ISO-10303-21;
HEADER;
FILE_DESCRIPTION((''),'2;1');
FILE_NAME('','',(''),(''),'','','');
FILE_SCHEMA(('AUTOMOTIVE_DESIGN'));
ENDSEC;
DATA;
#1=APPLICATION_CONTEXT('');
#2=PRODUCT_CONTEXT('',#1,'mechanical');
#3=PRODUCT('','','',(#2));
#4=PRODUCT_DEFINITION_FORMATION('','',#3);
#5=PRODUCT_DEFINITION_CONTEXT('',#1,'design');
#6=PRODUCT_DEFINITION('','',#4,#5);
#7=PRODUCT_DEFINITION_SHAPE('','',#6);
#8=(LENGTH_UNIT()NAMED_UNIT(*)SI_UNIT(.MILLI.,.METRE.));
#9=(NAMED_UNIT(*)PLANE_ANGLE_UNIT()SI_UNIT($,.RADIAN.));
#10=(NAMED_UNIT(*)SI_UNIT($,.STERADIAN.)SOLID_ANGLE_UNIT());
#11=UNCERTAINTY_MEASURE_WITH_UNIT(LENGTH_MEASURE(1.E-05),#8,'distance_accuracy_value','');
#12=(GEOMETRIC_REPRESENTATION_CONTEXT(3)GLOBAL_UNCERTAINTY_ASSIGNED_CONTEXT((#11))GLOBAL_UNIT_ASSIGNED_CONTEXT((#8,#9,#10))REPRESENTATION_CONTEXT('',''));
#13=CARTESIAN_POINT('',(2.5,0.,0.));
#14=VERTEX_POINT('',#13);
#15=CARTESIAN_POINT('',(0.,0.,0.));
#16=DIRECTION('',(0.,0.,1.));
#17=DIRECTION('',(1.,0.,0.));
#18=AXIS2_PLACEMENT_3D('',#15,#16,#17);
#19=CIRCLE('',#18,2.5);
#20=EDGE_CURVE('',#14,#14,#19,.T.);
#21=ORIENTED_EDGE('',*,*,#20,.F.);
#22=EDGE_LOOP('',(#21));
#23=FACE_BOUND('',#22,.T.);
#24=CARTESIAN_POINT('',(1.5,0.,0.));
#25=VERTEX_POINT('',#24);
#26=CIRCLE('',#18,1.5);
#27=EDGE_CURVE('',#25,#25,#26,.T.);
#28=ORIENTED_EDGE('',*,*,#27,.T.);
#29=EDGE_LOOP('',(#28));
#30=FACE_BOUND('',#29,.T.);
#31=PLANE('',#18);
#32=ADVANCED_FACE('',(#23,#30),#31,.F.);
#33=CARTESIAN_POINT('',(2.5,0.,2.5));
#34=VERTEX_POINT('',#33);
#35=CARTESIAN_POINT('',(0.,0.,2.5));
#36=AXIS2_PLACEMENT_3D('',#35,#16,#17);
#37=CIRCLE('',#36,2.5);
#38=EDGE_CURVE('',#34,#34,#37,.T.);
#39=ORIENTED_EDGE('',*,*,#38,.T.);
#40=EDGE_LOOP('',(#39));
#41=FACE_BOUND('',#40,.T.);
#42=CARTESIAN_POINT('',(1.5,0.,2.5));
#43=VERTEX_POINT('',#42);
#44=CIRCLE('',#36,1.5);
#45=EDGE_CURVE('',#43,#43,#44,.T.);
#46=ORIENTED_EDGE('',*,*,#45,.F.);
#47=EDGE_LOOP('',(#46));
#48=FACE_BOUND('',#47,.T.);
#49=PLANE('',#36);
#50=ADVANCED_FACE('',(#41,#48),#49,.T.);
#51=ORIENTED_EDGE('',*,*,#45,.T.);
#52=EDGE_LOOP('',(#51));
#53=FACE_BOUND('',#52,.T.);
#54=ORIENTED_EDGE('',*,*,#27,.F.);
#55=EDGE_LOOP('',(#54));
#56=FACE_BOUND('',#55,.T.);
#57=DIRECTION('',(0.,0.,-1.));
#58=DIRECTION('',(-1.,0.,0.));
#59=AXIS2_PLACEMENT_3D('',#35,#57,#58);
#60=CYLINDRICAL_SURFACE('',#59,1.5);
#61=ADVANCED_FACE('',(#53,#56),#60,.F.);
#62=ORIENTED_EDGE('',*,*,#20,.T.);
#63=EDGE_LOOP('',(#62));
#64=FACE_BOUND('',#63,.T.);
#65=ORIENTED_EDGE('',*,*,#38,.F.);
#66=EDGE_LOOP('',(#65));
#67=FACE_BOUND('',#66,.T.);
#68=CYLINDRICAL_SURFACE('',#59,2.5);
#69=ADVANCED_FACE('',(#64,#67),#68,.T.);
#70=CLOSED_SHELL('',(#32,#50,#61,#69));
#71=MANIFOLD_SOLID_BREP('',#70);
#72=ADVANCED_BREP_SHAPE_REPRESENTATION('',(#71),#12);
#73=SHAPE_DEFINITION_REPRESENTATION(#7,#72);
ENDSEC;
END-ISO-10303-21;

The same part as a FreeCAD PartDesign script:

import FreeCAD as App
import Part
import Sketcher
Q = App.Units.Quantity

doc = App.newDocument("Part")
body = doc.addObject("PartDesign::Body", "Body")

# Sketch on XY plane
sketch1 = doc.addObject("Sketcher::SketchObject", "Sketch")
body.addObject(sketch1)
sketch1.AttachmentSupport = (doc.XY_Plane, [""])
sketch1.MapMode = "FlatFace"
sketch1.addGeometry([
    Part.Circle(App.Vector(0, 0, 0), App.Vector(0, 0, 1), 2.5),
    Part.Circle(App.Vector(0, 0, 0), App.Vector(0, 0, 1), 1.5),
], False)
sketch1.addConstraint([
    Sketcher.Constraint("Coincident", 0, 3, -1, 1),
    Sketcher.Constraint("Coincident", 1, 3, -1, 1),
    Sketcher.Constraint("Diameter", 0, Q("5 mm")),
    Sketcher.Constraint("Diameter", 1, Q("3 mm")),
])
pad1 = doc.addObject("PartDesign::Pad", "Pad")
body.addObject(pad1)
pad1.Profile = sketch1
pad1.Length = 2.5

doc.recompute()
